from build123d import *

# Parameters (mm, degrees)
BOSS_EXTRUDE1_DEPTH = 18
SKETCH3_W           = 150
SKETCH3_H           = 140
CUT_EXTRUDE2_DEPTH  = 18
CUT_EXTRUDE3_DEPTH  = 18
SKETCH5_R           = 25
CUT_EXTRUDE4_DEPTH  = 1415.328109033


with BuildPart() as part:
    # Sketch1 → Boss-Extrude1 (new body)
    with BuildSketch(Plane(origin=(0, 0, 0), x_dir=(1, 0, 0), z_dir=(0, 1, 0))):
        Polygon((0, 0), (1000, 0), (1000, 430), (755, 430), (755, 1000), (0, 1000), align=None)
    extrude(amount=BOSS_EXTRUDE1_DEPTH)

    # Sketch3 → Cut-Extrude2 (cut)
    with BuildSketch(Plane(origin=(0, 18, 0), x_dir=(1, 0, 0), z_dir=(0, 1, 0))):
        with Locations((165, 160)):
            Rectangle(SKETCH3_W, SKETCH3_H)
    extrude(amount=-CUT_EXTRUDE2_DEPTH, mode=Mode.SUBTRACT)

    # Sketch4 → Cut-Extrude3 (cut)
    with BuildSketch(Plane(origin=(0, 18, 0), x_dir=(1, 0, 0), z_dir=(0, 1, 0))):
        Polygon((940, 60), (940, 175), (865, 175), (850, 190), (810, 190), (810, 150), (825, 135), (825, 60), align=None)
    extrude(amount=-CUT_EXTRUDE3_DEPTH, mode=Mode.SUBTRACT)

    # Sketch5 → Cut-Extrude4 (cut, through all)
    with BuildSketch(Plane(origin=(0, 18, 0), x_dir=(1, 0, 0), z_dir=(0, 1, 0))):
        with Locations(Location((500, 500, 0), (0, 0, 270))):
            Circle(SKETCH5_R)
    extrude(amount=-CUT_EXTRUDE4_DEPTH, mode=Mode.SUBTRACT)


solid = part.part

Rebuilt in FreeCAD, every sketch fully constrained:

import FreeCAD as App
import Part
import Sketcher
from FreeCAD import Vector
Q = App.Units.Quantity

doc = App.newDocument("Part")
body = doc.addObject("PartDesign::Body", "Body")

# Sketch on XZ plane
sketch1 = doc.addObject("Sketcher::SketchObject", "Sketch")
body.addObject(sketch1)
sketch1.AttachmentSupport = (doc.XZ_Plane, [""])
sketch1.MapMode = "FlatFace"
sketch1.addGeometry([
    Part.LineSegment(Vector(0, 0, 0), Vector(1000, 0, 0)),  # 0
    Part.LineSegment(Vector(1000, 0, 0), Vector(1000, -430, 0)),  # 1
    Part.LineSegment(Vector(1000, -430, 0), Vector(755, -430, 0)),  # 2
    Part.LineSegment(Vector(755, -430, 0), Vector(755, -1000, 0)),  # 3
    Part.LineSegment(Vector(755, -1000, 0), Vector(0, -1000, 0)),  # 4
    Part.LineSegment(Vector(0, -1000, 0), Vector(0, 0, 0)),  # 5
], False)
sketch1.addConstraint([
    Sketcher.Constraint("Coincident", 0, 2, 1, 1),
    Sketcher.Constraint("Coincident", 1, 2, 2, 1),
    Sketcher.Constraint("Coincident", 2, 2, 3, 1),
    Sketcher.Constraint("Coincident", 3, 2, 4, 1),
    Sketcher.Constraint("Coincident", 4, 2, 5, 1),
    Sketcher.Constraint("Coincident", 5, 2, 0, 1),
    Sketcher.Constraint("Horizontal", 0),
    Sketcher.Constraint("Vertical", 1),
    Sketcher.Constraint("Horizontal", 2),
    Sketcher.Constraint("Vertical", 3),
    Sketcher.Constraint("Horizontal", 4),
    Sketcher.Constraint("Vertical", 5),
    Sketcher.Constraint("Coincident", 5, 2, -1, 1),
    Sketcher.Constraint("Equal", 0, 5),
    Sketcher.Constraint("DistanceX", 0, 1, 0, 2, Q("1000 mm")),
    Sketcher.Constraint("DistanceX", 2, 2, 2, 1, Q("245 mm")),
    Sketcher.Constraint("DistanceY", 1, 2, 1, 1, Q("430 mm")),
])
pad1 = doc.addObject("PartDesign::Pad", "Pad")
body.addObject(pad1)
pad1.Profile = sketch1
pad1.Length = 18
pad1.Reversed = True

# Sketch on XZ plane
sketch2 = doc.addObject("Sketcher::SketchObject", "Sketch001")
body.addObject(sketch2)
sketch2.AttachmentSupport = (doc.XZ_Plane, [""])
sketch2.MapMode = "FlatFace"
sketch2.AttachmentOffset = App.Placement(Vector(0, 0, -18), App.Rotation())
sketch2.addGeometry([
    Part.LineSegment(Vector(90, -230, 0), Vector(90, -90, 0)),
    Part.LineSegment(Vector(90, -90, 0), Vector(240, -90, 0)),
    Part.LineSegment(Vector(240, -90, 0), Vector(240, -230, 0)),
    Part.LineSegment(Vector(240, -230, 0), Vector(90, -230, 0)),
], False)
sketch2.addConstraint([
    Sketcher.Constraint("Coincident", 0, 2, 1, 1),
    Sketcher.Constraint("Coincident", 1, 2, 2, 1),
    Sketcher.Constraint("Coincident", 2, 2, 3, 1),
    Sketcher.Constraint("Coincident", 3, 2, 0, 1),
    Sketcher.Constraint("Vertical", 0),
    Sketcher.Constraint("Horizontal", 1),
    Sketcher.Constraint("Vertical", 2),
    Sketcher.Constraint("Horizontal", 3),
    Sketcher.Constraint("DistanceX", 1, 1, 1, 2, Q("150 mm")),
    Sketcher.Constraint("DistanceY", 0, 1, 0, 2, Q("140 mm")),
    Sketcher.Constraint("DistanceX", -1, 1, 0, 2, Q("90 mm")),
    Sketcher.Constraint("DistanceY", 0, 2, -1, 1, Q("90 mm")),
])
pocket1 = doc.addObject("PartDesign::Pocket", "Pocket")
body.addObject(pocket1)
pocket1.Profile = sketch2
pocket1.Length = 18
pocket1.Reversed = True

# Sketch on XZ plane
sketch3 = doc.addObject("Sketcher::SketchObject", "Sketch002")
body.addObject(sketch3)
sketch3.AttachmentSupport = (doc.XZ_Plane, [""])
sketch3.MapMode = "FlatFace"
sketch3.AttachmentOffset = App.Placement(Vector(0, 0, -18), App.Rotation())
sketch3.addGeometry([
    Part.LineSegment(Vector(940, -60, 0), Vector(940, -175, 0)),  # 0
    Part.LineSegment(Vector(940, -175, 0), Vector(865, -175, 0)),  # 1
    Part.LineSegment(Vector(865, -175, 0), Vector(850, -190, 0)),  # 2
    Part.LineSegment(Vector(850, -190, 0), Vector(810, -190, 0)),  # 3
    Part.LineSegment(Vector(810, -190, 0), Vector(810, -150, 0)),  # 4
    Part.LineSegment(Vector(810, -150, 0), Vector(825, -135, 0)),  # 5
    Part.LineSegment(Vector(825, -135, 0), Vector(825, -60, 0)),  # 6
    Part.LineSegment(Vector(825, -60, 0), Vector(940, -60, 0)),  # 7
], False)
sketch3.addConstraint([
    Sketcher.Constraint("Coincident", 0, 2, 1, 1),
    Sketcher.Constraint("Coincident", 1, 2, 2, 1),
    Sketcher.Constraint("Coincident", 2, 2, 3, 1),
    Sketcher.Constraint("Coincident", 3, 2, 4, 1),
    Sketcher.Constraint("Coincident", 4, 2, 5, 1),
    Sketcher.Constraint("Coincident", 5, 2, 6, 1),
    Sketcher.Constraint("Coincident", 6, 2, 7, 1),
    Sketcher.Constraint("Coincident", 7, 2, 0, 1),
    Sketcher.Constraint("Vertical", 0),
    Sketcher.Constraint("Horizontal", 1),
    Sketcher.Constraint("Horizontal", 3),
    Sketcher.Constraint("Vertical", 4),
    Sketcher.Constraint("Vertical", 6),
    Sketcher.Constraint("Horizontal", 7),
    Sketcher.Constraint("Parallel", 2, 5),
    Sketcher.Constraint("Equal", 7, 0),
    Sketcher.Constraint("Equal", 3, 4),
    Sketcher.Constraint("Equal", 1, 6),
    Sketcher.Constraint("DistanceX", 1, 2, 1, 1, Q("75 mm")),
    Sketcher.Constraint("DistanceX", 3, 2, 3, 1, Q("40 mm")),
    Sketcher.Constraint("Angle", 2, Q("-135 deg")),
    Sketcher.Constraint("DistanceX", -1, 1, 0, 2, Q("940 mm")),
    Sketcher.Constraint("DistanceY", 0, 2, -1, 1, Q("175 mm")),
    Sketcher.Constraint("DistanceX", -1, 1, 2, 2, Q("850 mm")),
])
pocket2 = doc.addObject("PartDesign::Pocket", "Pocket001")
body.addObject(pocket2)
pocket2.Profile = sketch3
pocket2.Length = 18
pocket2.Reversed = True

# Sketch on XZ plane
sketch4 = doc.addObject("Sketcher::SketchObject", "Sketch003")
body.addObject(sketch4)
sketch4.AttachmentSupport = (doc.XZ_Plane, [""])
sketch4.MapMode = "FlatFace"
sketch4.AttachmentOffset = App.Placement(Vector(0, 0, -18), App.Rotation())
sketch4.addGeometry(Part.Circle(Vector(500, -500, 0), Vector(0, 0, 1), 25), False)
sketch4.addConstraint([
    Sketcher.Constraint("Diameter", 0, Q("50 mm")),
    Sketcher.Constraint("DistanceX", -1, 1, 0, 3, Q("500 mm")),
    Sketcher.Constraint("DistanceY", 0, 3, -1, 1, Q("500 mm")),
])
pocket3 = doc.addObject("PartDesign::Pocket", "Pocket002")
body.addObject(pocket3)
pocket3.Profile = sketch4
pocket3.Type = "ThroughAll"
pocket3.Reversed = True

doc.recompute()
